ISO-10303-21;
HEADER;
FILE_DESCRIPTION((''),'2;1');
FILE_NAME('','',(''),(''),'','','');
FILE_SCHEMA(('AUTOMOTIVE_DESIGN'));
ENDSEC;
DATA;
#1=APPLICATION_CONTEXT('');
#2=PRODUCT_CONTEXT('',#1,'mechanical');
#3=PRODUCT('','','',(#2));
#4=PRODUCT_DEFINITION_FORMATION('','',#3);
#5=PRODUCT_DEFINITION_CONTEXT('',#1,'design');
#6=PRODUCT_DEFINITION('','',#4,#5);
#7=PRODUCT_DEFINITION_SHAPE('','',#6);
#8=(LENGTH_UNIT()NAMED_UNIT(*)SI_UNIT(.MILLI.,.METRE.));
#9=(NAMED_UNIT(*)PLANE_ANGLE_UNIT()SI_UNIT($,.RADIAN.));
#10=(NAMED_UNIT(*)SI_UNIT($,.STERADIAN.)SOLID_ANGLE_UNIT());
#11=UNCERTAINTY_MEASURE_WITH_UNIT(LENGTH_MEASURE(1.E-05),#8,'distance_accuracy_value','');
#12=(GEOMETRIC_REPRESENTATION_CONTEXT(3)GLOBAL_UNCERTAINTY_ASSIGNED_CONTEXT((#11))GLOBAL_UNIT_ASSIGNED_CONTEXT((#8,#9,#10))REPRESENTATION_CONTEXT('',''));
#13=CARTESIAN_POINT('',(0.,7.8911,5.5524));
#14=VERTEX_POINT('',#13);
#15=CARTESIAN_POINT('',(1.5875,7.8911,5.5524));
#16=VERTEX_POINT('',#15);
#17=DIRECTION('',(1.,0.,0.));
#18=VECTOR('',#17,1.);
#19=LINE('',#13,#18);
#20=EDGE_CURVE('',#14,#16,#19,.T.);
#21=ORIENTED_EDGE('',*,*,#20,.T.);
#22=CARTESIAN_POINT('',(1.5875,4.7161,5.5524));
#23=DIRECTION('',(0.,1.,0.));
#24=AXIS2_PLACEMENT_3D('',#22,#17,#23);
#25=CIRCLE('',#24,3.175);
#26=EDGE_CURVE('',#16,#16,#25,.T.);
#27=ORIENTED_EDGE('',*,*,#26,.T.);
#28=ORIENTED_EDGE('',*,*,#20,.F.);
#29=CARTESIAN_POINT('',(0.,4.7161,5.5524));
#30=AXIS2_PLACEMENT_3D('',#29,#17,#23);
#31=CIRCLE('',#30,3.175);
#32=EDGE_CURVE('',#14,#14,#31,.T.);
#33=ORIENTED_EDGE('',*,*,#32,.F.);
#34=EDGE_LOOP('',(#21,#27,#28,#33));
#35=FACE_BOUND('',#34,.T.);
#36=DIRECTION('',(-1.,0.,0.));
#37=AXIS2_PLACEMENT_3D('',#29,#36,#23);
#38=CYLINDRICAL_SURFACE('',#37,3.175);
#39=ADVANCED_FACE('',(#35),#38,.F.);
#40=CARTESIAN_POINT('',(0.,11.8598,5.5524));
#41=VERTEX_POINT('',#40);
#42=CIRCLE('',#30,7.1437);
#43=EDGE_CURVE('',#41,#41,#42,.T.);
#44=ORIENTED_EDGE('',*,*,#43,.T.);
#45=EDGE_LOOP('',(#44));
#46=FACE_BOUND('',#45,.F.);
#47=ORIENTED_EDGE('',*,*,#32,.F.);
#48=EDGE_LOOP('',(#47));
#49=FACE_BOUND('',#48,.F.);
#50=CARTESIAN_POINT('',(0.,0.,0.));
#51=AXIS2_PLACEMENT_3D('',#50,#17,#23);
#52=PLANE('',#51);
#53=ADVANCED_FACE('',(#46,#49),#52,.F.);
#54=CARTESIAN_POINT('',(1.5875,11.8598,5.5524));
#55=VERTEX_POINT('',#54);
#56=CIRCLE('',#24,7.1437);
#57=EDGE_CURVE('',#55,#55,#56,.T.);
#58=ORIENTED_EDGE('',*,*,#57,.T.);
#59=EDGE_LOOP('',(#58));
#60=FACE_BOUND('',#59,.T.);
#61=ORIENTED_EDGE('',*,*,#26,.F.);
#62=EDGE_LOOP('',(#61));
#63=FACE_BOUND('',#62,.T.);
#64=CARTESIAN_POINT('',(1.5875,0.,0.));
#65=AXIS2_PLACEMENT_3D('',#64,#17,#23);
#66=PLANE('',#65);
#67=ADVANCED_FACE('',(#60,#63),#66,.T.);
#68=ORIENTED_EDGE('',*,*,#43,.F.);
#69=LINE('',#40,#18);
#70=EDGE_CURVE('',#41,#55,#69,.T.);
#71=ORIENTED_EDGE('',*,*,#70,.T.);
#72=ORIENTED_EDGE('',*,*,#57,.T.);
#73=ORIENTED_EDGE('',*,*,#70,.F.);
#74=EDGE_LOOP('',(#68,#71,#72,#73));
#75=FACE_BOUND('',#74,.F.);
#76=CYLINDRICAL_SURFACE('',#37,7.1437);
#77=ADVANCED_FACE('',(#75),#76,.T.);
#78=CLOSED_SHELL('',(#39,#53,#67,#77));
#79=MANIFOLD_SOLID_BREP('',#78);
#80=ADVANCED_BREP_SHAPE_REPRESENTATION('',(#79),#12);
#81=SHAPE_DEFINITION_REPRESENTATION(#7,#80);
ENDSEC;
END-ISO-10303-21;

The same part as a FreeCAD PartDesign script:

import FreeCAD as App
import Part
import Sketcher

V = App.Vector
Q = App.Units.Quantity

doc = App.newDocument("Part")
body = doc.addObject("PartDesign::Body", "Body")

# Sketch on YZ plane
sketch1 = body.newObject("Sketcher::SketchObject", "Sketch")
sketch1.AttachmentSupport = (doc.getObject("YZ_Plane"), [""])
sketch1.MapMode = "FlatFace"
sketch1.addGeometry(Part.Circle(V(4.7, 5.6, 0), V(0, 0, 1), 7.1), False)
sketch1.addGeometry(Part.Circle(V(4.7, 5.6, 0), V(0, 0, 1), 3.2), False)
sketch1.addConstraint(Sketcher.Constraint("Coincident", 1, 3, 0, 3))
sketch1.addConstraint(Sketcher.Constraint("Diameter", 1, Q("0.25 in")))
sketch1.addConstraint(Sketcher.Constraint("Diameter", 0, Q("0.5625 in")))
sketch1.addConstraint(Sketcher.Constraint("DistanceY", -1, 1, 0, 3, Q("0.2186 in")))
sketch1.addConstraint(Sketcher.Constraint("DistanceX", -1, 1, 0, 3, 4.716))
pad1 = body.newObject("PartDesign::Pad", "Pad")
pad1.Profile = sketch1
pad1.Length = Q("0.0625 in")

doc.recompute()
